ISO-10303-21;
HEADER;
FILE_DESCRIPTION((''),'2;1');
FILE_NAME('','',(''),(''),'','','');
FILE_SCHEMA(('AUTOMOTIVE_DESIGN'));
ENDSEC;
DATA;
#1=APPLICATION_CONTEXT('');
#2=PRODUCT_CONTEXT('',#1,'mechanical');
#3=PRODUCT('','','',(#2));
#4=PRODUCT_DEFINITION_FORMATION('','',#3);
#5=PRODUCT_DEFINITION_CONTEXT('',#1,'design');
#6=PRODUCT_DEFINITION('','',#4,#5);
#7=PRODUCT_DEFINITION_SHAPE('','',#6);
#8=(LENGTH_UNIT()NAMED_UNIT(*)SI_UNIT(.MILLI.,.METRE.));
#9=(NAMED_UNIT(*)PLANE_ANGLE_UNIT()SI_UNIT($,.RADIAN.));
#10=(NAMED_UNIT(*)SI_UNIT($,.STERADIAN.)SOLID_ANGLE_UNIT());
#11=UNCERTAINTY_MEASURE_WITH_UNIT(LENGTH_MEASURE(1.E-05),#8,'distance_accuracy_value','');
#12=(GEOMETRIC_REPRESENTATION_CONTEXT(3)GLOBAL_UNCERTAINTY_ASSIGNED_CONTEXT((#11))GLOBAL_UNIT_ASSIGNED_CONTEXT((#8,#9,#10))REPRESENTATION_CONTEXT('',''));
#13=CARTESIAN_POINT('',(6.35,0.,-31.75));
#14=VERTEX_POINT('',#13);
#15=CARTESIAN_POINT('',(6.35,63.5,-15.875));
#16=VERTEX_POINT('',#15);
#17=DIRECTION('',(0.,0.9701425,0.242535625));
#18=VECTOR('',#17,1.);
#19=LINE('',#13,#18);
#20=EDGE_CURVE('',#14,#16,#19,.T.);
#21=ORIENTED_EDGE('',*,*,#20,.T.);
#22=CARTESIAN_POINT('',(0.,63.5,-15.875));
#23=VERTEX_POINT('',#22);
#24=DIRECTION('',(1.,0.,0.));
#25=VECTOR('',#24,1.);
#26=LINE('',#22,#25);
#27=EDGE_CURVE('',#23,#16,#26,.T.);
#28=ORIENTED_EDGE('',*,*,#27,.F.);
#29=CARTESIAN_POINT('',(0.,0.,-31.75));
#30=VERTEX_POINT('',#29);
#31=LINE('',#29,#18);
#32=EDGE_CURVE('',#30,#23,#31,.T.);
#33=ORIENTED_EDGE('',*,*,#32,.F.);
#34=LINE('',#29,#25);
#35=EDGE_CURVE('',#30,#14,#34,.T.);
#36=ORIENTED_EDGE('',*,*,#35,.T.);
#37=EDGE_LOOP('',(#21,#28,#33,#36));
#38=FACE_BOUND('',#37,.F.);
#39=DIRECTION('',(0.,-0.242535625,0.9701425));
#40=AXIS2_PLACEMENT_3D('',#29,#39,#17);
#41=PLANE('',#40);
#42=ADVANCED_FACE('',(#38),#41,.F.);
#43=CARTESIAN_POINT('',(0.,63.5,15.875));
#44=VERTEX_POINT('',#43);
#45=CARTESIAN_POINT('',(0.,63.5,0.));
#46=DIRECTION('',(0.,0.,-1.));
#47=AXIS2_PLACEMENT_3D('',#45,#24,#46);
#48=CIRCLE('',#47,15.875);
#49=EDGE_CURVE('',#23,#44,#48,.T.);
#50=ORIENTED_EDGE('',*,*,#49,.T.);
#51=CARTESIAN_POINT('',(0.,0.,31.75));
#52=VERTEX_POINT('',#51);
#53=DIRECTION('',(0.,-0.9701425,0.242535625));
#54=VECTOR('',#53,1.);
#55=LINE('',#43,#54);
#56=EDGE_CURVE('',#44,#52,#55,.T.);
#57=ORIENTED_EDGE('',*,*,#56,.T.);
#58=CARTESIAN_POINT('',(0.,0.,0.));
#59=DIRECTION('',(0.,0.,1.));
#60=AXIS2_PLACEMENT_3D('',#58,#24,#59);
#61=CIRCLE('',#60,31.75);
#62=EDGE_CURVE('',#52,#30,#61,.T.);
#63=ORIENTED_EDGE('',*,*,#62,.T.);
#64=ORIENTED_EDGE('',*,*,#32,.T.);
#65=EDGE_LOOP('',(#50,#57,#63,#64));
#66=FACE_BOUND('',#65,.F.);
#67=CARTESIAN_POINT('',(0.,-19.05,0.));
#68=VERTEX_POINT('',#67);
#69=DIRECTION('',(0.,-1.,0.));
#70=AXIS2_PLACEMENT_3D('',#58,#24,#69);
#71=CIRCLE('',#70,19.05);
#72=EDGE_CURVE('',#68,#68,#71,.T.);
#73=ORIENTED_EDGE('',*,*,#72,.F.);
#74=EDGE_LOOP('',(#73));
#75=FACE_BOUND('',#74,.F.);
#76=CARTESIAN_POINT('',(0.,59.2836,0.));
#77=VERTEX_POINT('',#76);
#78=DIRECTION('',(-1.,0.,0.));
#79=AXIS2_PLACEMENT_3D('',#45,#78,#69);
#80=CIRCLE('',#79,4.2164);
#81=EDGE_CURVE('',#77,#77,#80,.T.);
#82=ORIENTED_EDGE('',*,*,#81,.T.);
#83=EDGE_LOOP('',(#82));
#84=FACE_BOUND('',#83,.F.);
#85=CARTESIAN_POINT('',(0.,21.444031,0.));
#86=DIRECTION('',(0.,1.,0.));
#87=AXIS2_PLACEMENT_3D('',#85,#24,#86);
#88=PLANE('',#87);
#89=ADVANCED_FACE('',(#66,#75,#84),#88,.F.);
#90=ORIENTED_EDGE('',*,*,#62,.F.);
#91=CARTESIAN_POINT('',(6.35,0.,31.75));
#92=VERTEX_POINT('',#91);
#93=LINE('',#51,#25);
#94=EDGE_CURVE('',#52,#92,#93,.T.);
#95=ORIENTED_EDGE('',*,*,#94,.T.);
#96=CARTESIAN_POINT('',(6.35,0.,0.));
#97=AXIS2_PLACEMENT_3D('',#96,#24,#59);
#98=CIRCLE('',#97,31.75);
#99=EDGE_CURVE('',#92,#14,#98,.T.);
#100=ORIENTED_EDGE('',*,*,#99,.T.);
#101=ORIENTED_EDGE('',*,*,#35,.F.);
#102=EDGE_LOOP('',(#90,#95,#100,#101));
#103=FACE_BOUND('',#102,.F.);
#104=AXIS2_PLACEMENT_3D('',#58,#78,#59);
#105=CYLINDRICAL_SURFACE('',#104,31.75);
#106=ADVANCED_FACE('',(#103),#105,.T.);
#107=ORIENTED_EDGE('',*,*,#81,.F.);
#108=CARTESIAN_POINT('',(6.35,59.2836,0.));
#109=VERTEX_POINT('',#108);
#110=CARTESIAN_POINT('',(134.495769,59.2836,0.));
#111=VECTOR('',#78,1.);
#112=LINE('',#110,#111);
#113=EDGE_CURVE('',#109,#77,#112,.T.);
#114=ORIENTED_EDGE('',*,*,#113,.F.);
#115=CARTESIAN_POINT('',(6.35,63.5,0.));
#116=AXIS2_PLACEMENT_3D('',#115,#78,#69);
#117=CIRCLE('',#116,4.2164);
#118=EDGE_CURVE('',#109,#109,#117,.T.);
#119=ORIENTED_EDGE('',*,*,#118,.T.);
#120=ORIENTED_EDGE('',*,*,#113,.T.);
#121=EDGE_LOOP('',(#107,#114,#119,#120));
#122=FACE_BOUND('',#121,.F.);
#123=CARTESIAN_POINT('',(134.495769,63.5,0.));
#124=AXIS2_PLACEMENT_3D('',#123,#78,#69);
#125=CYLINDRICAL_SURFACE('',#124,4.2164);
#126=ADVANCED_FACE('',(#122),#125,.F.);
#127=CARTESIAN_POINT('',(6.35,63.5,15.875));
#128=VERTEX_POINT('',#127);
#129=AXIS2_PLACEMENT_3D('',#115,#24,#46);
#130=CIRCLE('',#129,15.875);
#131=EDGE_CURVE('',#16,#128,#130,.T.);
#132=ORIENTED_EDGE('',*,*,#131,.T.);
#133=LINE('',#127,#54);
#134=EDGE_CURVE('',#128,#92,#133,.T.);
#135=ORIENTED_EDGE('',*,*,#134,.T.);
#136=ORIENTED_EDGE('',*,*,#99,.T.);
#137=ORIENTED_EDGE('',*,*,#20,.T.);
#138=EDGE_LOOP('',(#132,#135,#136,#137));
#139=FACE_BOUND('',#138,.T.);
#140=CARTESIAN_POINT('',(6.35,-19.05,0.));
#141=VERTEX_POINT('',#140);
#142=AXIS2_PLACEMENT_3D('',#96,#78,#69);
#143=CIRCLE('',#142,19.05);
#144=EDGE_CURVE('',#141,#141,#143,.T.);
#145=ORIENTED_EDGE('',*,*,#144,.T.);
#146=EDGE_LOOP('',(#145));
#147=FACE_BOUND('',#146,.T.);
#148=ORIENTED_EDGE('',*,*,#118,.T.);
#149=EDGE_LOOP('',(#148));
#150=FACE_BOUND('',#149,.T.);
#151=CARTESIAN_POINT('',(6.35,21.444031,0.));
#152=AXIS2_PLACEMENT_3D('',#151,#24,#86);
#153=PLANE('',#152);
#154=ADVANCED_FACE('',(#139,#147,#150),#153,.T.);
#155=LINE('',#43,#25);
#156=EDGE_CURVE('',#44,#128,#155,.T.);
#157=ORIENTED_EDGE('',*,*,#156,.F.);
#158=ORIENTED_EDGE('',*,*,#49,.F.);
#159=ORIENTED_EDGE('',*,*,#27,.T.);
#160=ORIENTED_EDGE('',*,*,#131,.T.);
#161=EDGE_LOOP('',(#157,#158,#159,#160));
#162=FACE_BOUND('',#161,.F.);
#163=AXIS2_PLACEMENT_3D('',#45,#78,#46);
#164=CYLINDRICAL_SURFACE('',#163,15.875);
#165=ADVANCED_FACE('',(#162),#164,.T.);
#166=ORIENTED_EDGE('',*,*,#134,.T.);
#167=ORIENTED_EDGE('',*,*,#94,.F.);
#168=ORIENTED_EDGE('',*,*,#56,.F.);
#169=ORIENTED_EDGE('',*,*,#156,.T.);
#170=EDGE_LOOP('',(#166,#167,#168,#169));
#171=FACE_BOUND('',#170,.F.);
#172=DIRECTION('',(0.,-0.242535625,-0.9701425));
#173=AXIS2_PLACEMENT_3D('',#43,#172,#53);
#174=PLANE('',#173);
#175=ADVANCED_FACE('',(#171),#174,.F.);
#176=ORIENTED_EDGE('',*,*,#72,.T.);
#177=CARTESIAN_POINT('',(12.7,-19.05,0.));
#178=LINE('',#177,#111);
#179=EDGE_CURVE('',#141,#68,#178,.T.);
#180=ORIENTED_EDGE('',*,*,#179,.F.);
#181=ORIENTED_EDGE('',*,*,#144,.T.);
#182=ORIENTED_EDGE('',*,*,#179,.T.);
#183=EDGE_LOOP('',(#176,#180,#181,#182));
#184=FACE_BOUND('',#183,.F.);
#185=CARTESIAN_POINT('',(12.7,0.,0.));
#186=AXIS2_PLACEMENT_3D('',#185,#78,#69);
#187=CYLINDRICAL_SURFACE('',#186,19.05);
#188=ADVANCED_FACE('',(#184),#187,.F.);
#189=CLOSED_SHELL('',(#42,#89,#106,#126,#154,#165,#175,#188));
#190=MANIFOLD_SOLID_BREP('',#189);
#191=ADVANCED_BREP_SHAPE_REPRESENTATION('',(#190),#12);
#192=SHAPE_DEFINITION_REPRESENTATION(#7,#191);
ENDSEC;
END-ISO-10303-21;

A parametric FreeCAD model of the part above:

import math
import FreeCAD as App
import Part
import Sketcher
Q = App.Units.Quantity

doc = App.newDocument("Part")
params = doc.addObject("Spreadsheet::Sheet", "Params")
for row, (alias, value) in enumerate([
    ("sketch1_radius", "1.25 in"),
    ("sketch1_radius2", "0.625 in"),
    ("pad1_length", "0.25 in"),
    ("sketch2_diameter", "1.5 in"),
    ("hole_diameter", "1.5 in"),
    ("hole_depth", "0.25 in"),
    ("sketch3_diameter", "0.332 in"),
    ("hole2_diameter", "0.332 in"),
], start=1):
    params.set(f"A{row}", alias)
    params.set(f"B{row}", "=" + value)
    params.setAlias(f"B{row}", alias)

body = doc.addObject("PartDesign::Body", "Body")

sketch1 = body.newObject("Sketcher::SketchObject", "Sketch")
sketch1.AttachmentSupport = (doc.getObject("YZ_Plane"), [""])
sketch1.MapMode = "FlatFace"
sketch1.addGeometry([
    Part.LineSegment(App.Vector(64, 16, 0), App.Vector(0, 32, 0)),
    Part.ArcOfCircle(Part.Circle(App.Vector(0, 0, 0), App.Vector(0, 0, 1), 32), math.radians(90), math.radians(270)),
    Part.LineSegment(App.Vector(0, -32, 0), App.Vector(64, -16, 0)),
    Part.ArcOfCircle(Part.Circle(App.Vector(64, 0, 0), App.Vector(0, 0, 1), 16), math.radians(-90), math.radians(90)),
], False)
sketch1.addConstraint([
    Sketcher.Constraint("Coincident", 0, 2, 1, 1),
    Sketcher.Constraint("Coincident", 1, 2, 2, 1),
    Sketcher.Constraint("Coincident", 2, 2, 3, 1),
    Sketcher.Constraint("Coincident", 3, 2, 0, 1),
    Sketcher.Constraint("Coincident", 1, 3, -1, 1),
    Sketcher.Constraint("Symmetric", 2, 2, 3, 2, -1),
    Sketcher.Constraint("PointOnObject", 0, 2, -2),
    Sketcher.Constraint("PointOnObject", 1, 2, -2),
    Sketcher.Constraint("Vertical", 3, 3, 2, 2),
    Sketcher.Constraint("Radius", 1, Q("1.25 in")),
    Sketcher.Constraint("Radius", 3, Q("0.625 in")),
    Sketcher.Constraint("DistanceX", -1, 1, 3, 3, Q("2.5 in")),
])
sketch1.setExpression("Constraints[9]", "Params.sketch1_radius")
sketch1.setExpression("Constraints[10]", "Params.sketch1_radius2")
pad1 = body.newObject("PartDesign::Pad", "Pad")
pad1.Profile = sketch1
pad1.setExpression("Length", "Params.pad1_length")

sketch2 = body.newObject("Sketcher::SketchObject", "Sketch001")
sketch2.AttachmentSupport = (doc.getObject("YZ_Plane"), [""])
sketch2.MapMode = "FlatFace"
sketch2.AttachmentOffset = App.Placement(App.Vector(0, 0, 0.25 * 25.4), App.Rotation())
sketch2.addGeometry(Part.Circle(App.Vector(0, 0, 0), App.Vector(0, 0, 1), 19), False)
sketch2.addConstraint([
    Sketcher.Constraint("Coincident", 0, 3, -1, 1),
    Sketcher.Constraint("Diameter", 0, Q("1.5 in")),
])
sketch2.setExpression("Constraints[1]", "Params.sketch2_diameter")
doc.recompute()
hole = body.newObject("PartDesign::Hole", "Hole")
hole.Profile = sketch2
hole.ThreadType = "None"
hole.setExpression("Diameter", "Params.hole_diameter")
hole.DepthType = "Dimension"
hole.setExpression("Depth", "Params.hole_depth")
hole.DrillPoint = "Angled"
hole.DrillPointAngle = 118

sketch3 = body.newObject("Sketcher::SketchObject", "Sketch002")
sketch3.AttachmentSupport = (doc.getObject("YZ_Plane"), [""])
sketch3.MapMode = "FlatFace"
sketch3.AttachmentOffset = App.Placement(App.Vector(0, 0, 0.25 * 25.4), App.Rotation())
sketch3.addGeometry(Part.Circle(App.Vector(63.5, 0, 0), App.Vector(0, 0, 1), 4.2), False)
sketch3.addConstraint([
    Sketcher.Constraint("PointOnObject", 0, 3, -1),
    Sketcher.Constraint("Diameter", 0, Q("0.332 in")),
    Sketcher.Constraint("DistanceX", -1, 1, 0, 3, Q("2.5 in")),
])
sketch3.setExpression("Constraints[1]", "Params.sketch3_diameter")
doc.recompute()
hole2 = body.newObject("PartDesign::Hole", "Hole001")
hole2.Profile = sketch3
hole2.ThreadType = "None"
hole2.setExpression("Diameter", "Params.hole2_diameter")
hole2.DepthType = "ThroughAll"

doc.recompute()
